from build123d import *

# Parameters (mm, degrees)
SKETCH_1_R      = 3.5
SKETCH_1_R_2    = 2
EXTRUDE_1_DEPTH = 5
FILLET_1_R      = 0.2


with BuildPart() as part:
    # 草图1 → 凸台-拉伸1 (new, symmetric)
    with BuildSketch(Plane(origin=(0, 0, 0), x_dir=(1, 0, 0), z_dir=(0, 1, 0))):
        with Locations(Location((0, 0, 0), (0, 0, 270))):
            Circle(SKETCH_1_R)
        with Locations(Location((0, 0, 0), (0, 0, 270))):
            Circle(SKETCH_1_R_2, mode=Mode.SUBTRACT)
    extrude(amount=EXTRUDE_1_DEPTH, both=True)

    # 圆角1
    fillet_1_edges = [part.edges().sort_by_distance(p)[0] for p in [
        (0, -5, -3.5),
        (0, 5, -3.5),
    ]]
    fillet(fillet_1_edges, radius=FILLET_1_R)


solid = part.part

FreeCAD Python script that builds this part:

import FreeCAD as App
import Part
import Sketcher
from FreeCAD import Vector
Q = App.Units.Quantity


def edges_at(feature, points):
    """Names of the edges that pass closest to the given points."""
    edges = feature.Shape.Edges
    near = lambda p: min(range(len(edges)), key=lambda i: edges[i].distToShape(Part.Vertex(*p))[0])
    return sorted({f"Edge{near(p) + 1}" for p in points})

doc = App.newDocument("Part")
body = doc.addObject("PartDesign::Body", "Body")

sketch1 = doc.addObject("Sketcher::SketchObject", "Sketch")
body.addObject(sketch1)
sketch1.AttachmentSupport = (doc.XZ_Plane, [""])
sketch1.MapMode = "FlatFace"
sketch1.addGeometry([
    Part.Circle(Vector(0, 0, 0), Vector(0, 0, 1), 3.5),
    Part.Circle(Vector(0, 0, 0), Vector(0, 0, 1), 2),
], False)
sketch1.addConstraint([
    Sketcher.Constraint("Coincident", 0, 3, -1, 1),
    Sketcher.Constraint("Coincident", 1, 3, -1, 1),
    Sketcher.Constraint("Diameter", 0, Q("7 mm")),
    Sketcher.Constraint("Diameter", 1, Q("4 mm")),
])
pad1 = doc.addObject("PartDesign::Pad", "Pad")
body.addObject(pad1)
pad1.Profile = sketch1
pad1.Length = 10
pad1.Midplane = True
doc.recompute()

fillet = doc.addObject("PartDesign::Fillet", "Fillet")
body.addObject(fillet)
fillet.Base = (pad1, edges_at(pad1, [(0, -5, -3.5), (0, 5, -3.5)]))
fillet.Radius = 0.2

doc.recompute()
